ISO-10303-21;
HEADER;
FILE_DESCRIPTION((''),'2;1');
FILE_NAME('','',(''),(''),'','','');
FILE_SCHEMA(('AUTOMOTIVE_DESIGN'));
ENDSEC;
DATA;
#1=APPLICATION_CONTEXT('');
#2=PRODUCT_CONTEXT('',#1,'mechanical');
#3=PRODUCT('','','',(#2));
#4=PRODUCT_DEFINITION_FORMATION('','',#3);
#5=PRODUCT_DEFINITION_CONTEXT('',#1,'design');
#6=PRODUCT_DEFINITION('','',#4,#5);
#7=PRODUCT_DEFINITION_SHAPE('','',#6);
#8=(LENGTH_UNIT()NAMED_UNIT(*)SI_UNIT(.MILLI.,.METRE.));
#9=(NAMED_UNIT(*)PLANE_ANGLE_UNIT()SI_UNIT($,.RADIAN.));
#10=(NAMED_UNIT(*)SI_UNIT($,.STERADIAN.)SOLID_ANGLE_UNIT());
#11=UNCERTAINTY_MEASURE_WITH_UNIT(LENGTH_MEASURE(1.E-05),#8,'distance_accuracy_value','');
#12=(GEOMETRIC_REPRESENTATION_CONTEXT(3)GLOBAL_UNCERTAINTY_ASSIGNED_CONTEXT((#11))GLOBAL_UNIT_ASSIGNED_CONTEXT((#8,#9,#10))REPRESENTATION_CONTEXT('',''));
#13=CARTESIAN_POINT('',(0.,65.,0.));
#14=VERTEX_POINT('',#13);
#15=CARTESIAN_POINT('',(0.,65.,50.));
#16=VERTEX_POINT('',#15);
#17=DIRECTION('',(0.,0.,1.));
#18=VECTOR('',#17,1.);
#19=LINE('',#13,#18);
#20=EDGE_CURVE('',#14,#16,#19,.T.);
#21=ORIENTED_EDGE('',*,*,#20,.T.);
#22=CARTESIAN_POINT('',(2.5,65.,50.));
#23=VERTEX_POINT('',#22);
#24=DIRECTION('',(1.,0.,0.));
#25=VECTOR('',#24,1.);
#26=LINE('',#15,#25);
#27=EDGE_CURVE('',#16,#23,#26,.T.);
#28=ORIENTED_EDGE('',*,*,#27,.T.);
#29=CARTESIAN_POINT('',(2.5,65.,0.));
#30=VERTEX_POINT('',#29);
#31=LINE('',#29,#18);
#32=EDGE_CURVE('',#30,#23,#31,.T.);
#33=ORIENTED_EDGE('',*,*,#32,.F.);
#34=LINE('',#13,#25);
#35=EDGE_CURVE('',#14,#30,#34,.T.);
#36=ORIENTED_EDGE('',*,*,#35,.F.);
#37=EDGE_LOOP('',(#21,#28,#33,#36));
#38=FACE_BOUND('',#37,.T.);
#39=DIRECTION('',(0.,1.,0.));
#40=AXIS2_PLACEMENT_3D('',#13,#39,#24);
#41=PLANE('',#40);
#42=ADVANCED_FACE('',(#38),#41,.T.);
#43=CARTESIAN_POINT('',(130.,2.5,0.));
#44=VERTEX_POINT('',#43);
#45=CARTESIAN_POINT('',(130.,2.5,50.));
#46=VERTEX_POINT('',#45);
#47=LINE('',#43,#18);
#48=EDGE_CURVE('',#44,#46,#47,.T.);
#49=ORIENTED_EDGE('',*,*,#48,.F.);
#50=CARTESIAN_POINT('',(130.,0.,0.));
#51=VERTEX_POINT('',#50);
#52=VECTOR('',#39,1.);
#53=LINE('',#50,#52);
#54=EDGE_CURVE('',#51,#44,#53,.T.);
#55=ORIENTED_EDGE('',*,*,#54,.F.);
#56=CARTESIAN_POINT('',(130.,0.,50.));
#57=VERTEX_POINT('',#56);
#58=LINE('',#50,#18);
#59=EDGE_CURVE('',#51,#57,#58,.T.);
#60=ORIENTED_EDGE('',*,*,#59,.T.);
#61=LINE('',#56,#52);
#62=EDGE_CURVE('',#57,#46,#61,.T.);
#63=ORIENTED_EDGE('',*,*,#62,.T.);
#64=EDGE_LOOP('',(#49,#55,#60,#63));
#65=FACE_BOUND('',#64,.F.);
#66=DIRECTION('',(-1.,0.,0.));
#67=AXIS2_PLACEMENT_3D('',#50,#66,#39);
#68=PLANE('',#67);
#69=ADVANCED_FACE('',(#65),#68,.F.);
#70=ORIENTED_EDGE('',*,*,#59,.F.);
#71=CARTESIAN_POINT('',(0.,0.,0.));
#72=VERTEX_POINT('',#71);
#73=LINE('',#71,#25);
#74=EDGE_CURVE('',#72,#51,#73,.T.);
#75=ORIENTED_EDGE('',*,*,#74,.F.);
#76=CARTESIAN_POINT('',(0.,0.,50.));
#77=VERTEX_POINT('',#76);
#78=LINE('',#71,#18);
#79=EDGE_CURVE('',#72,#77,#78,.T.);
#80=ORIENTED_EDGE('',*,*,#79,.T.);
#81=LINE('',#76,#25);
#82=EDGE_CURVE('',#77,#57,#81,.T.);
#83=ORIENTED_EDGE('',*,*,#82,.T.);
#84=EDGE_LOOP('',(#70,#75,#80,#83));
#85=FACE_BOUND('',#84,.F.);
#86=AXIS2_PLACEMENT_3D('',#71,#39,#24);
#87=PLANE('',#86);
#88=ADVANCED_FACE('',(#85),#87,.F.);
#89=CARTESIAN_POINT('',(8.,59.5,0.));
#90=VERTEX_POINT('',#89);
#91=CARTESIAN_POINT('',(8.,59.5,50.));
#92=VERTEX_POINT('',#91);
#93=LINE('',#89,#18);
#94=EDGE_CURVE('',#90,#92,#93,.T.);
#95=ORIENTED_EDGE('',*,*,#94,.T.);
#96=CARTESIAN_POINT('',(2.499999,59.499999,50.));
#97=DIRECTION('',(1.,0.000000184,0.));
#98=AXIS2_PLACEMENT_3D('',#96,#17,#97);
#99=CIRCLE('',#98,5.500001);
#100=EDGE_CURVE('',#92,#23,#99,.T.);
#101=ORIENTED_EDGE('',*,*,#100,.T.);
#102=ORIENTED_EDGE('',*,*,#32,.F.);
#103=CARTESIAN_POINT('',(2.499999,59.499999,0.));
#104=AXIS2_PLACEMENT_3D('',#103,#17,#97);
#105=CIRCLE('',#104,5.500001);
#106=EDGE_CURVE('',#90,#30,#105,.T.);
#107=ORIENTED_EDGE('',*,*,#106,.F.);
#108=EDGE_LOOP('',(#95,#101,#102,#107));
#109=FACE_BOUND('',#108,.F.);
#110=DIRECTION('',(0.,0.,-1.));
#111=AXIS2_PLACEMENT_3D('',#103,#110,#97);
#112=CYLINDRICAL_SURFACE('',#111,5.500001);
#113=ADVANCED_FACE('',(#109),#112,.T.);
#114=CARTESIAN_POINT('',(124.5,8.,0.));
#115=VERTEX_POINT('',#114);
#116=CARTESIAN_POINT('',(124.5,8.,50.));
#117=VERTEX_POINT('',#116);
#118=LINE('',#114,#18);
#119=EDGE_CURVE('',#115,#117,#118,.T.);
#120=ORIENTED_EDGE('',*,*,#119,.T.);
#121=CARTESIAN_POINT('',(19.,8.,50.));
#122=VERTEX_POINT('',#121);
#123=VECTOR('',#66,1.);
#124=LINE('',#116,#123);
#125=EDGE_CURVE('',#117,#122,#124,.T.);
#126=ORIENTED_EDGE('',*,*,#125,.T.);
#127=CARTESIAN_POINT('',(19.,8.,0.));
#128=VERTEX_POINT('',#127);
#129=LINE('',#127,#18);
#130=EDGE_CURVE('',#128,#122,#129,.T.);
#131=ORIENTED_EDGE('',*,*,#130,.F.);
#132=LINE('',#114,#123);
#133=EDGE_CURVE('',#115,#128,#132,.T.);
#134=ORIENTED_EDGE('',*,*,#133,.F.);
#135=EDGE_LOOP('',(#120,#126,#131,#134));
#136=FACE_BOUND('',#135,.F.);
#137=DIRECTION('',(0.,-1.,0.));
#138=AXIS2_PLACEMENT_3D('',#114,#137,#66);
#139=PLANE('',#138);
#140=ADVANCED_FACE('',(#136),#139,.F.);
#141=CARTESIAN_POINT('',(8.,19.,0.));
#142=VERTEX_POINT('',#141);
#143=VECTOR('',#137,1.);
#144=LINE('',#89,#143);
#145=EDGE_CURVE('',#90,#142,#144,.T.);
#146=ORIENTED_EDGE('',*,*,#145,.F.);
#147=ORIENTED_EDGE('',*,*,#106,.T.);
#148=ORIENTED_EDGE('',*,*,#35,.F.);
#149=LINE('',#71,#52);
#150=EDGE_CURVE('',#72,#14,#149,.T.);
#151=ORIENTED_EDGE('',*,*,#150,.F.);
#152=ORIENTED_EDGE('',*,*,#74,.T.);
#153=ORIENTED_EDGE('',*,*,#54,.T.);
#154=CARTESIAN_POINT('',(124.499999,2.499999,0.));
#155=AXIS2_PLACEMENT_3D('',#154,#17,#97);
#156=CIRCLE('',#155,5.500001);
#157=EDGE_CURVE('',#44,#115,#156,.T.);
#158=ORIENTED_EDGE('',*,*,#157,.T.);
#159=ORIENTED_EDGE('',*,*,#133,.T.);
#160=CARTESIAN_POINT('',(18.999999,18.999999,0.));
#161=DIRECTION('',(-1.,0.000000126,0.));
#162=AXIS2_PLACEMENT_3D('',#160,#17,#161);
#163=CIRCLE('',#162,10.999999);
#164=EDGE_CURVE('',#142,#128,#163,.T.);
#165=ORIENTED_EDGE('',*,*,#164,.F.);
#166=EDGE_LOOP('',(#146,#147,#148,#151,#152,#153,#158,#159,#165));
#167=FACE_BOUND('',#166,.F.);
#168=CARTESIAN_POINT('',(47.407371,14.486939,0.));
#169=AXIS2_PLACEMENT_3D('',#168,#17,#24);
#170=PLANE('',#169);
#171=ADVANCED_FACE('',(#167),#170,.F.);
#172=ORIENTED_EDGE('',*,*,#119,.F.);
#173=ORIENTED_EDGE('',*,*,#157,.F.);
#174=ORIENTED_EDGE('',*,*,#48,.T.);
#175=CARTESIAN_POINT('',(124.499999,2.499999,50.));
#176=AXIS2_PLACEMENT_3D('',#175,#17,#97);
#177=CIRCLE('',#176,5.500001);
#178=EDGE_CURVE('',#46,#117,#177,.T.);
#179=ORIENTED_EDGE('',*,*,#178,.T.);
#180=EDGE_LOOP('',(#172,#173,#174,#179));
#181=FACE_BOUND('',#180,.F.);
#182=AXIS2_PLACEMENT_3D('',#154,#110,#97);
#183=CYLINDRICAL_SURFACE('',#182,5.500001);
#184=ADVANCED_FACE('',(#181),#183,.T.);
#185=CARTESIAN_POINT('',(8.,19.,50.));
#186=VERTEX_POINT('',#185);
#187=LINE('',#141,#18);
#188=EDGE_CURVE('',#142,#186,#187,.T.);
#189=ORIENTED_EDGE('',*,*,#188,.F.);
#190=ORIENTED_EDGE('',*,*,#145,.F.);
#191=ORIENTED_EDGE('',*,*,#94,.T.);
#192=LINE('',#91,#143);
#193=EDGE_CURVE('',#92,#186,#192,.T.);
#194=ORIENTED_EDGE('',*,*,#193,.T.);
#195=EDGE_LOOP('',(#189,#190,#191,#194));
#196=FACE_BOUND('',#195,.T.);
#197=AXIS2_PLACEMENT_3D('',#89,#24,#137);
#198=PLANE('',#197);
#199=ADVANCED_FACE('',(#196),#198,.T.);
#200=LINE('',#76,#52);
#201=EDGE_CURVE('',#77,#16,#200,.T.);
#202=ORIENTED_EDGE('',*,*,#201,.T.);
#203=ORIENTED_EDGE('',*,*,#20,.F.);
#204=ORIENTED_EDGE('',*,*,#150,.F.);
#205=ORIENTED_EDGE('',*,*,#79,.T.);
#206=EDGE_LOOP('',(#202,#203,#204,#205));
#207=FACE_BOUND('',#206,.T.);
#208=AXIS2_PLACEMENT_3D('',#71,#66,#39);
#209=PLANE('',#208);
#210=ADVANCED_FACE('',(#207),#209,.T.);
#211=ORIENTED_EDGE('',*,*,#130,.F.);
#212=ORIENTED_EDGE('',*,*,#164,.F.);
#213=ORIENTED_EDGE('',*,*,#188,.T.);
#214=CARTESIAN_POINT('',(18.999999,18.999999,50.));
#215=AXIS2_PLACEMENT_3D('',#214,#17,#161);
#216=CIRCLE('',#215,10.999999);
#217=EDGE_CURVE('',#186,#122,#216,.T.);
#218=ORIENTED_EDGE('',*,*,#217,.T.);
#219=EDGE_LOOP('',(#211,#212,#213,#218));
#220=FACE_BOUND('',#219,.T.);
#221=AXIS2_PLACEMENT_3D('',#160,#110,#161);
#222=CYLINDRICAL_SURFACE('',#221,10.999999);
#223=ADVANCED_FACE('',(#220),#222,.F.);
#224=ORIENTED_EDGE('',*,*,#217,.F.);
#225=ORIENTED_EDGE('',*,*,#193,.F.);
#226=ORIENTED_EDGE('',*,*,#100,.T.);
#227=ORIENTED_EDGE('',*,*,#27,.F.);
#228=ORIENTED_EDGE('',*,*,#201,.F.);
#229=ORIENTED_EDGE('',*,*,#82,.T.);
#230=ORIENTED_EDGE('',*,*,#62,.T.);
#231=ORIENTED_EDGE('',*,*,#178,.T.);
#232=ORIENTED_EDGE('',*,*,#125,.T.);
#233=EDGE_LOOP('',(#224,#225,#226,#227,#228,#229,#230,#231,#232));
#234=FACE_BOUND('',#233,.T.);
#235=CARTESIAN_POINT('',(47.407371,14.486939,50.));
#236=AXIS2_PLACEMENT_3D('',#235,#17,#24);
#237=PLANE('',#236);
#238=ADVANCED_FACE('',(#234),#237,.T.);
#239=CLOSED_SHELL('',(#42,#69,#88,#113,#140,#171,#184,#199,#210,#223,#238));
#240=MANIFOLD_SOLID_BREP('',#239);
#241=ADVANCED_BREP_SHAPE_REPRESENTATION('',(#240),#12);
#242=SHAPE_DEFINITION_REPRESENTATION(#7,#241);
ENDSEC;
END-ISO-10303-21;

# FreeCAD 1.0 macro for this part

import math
import FreeCAD as App
import Part
import Sketcher

doc = App.newDocument("Part")
params = doc.addObject("Spreadsheet::Sheet", "Params")
for row, (alias, value) in enumerate([
    ("sketch1_radius", "10.999999 mm"),
    ("sketch1_radius2", "5.500001 mm"),
    ("sketch1_width", "130 mm"),
    ("sketch1_height", "65 mm"),
    ("sketch1_width2", "105.5 mm"),
    ("pad1_length", "50 mm"),
], start=1):
    params.set(f"A{row}", alias)
    params.set(f"B{row}", "=" + value)
    params.setAlias(f"B{row}", alias)

body = doc.addObject("PartDesign::Body", "Body")

# Sketch on XY plane
sketch1 = body.newObject("Sketcher::SketchObject", "Sketch")
sketch1.AttachmentSupport = (doc.getObject("XY_Plane"), [""])
sketch1.MapMode = "FlatFace"
sketch1.addGeometry([
    Part.LineSegment(App.Vector(0, 0, 0), App.Vector(130, 0, 0)),  # 0
    Part.LineSegment(App.Vector(130, 0, 0), App.Vector(130, 2.5, 0)),  # 1
    Part.ArcOfCircle(Part.Circle(App.Vector(124.5, 2.5, 0), App.Vector(0, 0, 1), 5.5), math.radians(0), math.radians(90)),  # 2
    Part.LineSegment(App.Vector(124.5, 8, 0), App.Vector(19, 8, 0)),  # 3
    Part.ArcOfCircle(Part.Circle(App.Vector(19, 19, 0), App.Vector(0, 0, 1), 11), math.radians(180), math.radians(270)),  # 4
    Part.LineSegment(App.Vector(8, 19, 0), App.Vector(8, 59.5, 0)),  # 5
    Part.ArcOfCircle(Part.Circle(App.Vector(2.5, 59.5, 0), App.Vector(0, 0, 1), 5.5), math.radians(0), math.radians(90)),  # 6
    Part.LineSegment(App.Vector(2.5, 65, 0), App.Vector(0, 65, 0)),  # 7
    Part.LineSegment(App.Vector(0, 65, 0), App.Vector(0, 0, 0)),  # 8
], False)
sketch1.addConstraint([
    Sketcher.Constraint("Coincident", 0, 2, 1, 1),
    Sketcher.Constraint("Tangent", 1, 2, 2, 1),
    Sketcher.Constraint("Tangent", 2, 2, 3, 1),
    Sketcher.Constraint("Tangent", 3, 2, 4, 2),
    Sketcher.Constraint("Tangent", 4, 1, 5, 1),
    Sketcher.Constraint("Tangent", 5, 2, 6, 1),
    Sketcher.Constraint("Tangent", 6, 2, 7, 1),
    Sketcher.Constraint("Coincident", 7, 2, 8, 1),
    Sketcher.Constraint("Coincident", 8, 2, 0, 1),
    Sketcher.Constraint("Horizontal", 0),
    Sketcher.Constraint("Vertical", 1),
    Sketcher.Constraint("Horizontal", 3),
    Sketcher.Constraint("Vertical", 5),
    Sketcher.Constraint("Horizontal", 7),
    Sketcher.Constraint("Vertical", 8),
    Sketcher.Constraint("Coincident", 8, 2, -1, 1),
    Sketcher.Constraint("Equal", 2, 6),
    Sketcher.Constraint("Equal", 7, 1),
    Sketcher.Constraint("Radius", 4, 10.999999),
    Sketcher.Constraint("Radius", 2, 5.500001),
    Sketcher.Constraint("DistanceX", 0, 1, 0, 2, 130.0),
    Sketcher.Constraint("DistanceY", 8, 2, 8, 1, 65.0),
    Sketcher.Constraint("DistanceX", 3, 2, 3, 1, 105.5),
])
sketch1.setExpression("Constraints[18]", "Params.sketch1_radius")
sketch1.setExpression("Constraints[19]", "Params.sketch1_radius2")
sketch1.setExpression("Constraints[20]", "Params.sketch1_width")
sketch1.setExpression("Constraints[21]", "Params.sketch1_height")
sketch1.setExpression("Constraints[22]", "Params.sketch1_width2")
pad1 = body.newObject("PartDesign::Pad", "Pad")
pad1.Profile = sketch1
pad1.setExpression("Length", "Params.pad1_length")

doc.recompute()
